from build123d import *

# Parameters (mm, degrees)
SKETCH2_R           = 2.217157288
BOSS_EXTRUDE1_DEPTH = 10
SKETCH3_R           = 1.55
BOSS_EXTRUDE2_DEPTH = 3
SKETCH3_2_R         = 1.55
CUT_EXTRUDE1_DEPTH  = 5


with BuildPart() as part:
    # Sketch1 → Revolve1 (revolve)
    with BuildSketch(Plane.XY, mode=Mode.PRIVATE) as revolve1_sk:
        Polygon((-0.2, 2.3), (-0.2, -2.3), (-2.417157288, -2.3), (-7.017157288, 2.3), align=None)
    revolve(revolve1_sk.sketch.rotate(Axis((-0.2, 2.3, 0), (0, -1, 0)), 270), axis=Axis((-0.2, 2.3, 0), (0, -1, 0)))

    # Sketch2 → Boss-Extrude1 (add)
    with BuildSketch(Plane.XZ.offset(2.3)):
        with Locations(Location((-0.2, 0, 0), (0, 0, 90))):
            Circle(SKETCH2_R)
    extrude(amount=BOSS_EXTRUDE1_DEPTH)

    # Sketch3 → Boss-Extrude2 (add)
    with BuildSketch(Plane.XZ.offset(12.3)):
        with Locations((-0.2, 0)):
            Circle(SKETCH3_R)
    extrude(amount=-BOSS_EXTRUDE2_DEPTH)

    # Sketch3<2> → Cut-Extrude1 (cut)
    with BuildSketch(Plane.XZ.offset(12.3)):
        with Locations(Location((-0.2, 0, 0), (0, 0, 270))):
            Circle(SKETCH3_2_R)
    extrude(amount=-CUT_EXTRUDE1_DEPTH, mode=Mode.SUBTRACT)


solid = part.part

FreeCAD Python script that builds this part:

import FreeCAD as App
import Part
import Sketcher
from FreeCAD import Vector
Q = App.Units.Quantity


def add_polygon(sketch, points):
    """Adds a closed chain of lines whose ends are joined by coincident constraints."""
    first, n = sketch.GeometryCount, len(points)
    for a, b in zip(points, points[1:] + points[:1]):
        sketch.addGeometry(Part.LineSegment(App.Vector(*a, 0), App.Vector(*b, 0)), False)
    for i in range(n):
        sketch.addConstraint(Sketcher.Constraint("Coincident", first + i, 2, first + (i + 1) % n, 1))

doc = App.newDocument("Part")
params = doc.addObject("Spreadsheet::Sheet", "Params")
for row, (alias, value) in enumerate([
    ("sketch1_height", "4.6 mm"),
    ("revolution_angle", "360 deg"),
    ("pad1_length", "10 mm"),
    ("sketch3_diameter", "3.1 mm"),
    ("pad2_length", "3 mm"),
    ("sketch4_diameter", "3.1 mm"),
    ("pocket1_length", "5 mm"),
], start=1):
    params.set(f"A{row}", alias)
    params.set(f"B{row}", "=" + value)
    params.setAlias(f"B{row}", alias)

body = doc.addObject("PartDesign::Body", "Body")

sketch1 = doc.addObject("Sketcher::SketchObject", "Sketch")
body.addObject(sketch1)
sketch1.AttachmentSupport = (doc.XY_Plane, [""])
sketch1.MapMode = "FlatFace"
add_polygon(sketch1, [(-0.2, -2.3), (-0.2, 2.3), (-7.017157, 2.3), (-2.417157, -2.3)])
sketch1.addGeometry(Part.LineSegment(Vector(-0.2, 2.3, 0), Vector(-0.2, -2.3, 0)), True)
sketch1.addConstraint([
    Sketcher.Constraint("Vertical", 0),
    Sketcher.Constraint("Horizontal", 1),
    Sketcher.Constraint("Horizontal", 3),
    Sketcher.Constraint("Vertical", 4),
    Sketcher.Constraint("Coincident", 4, 1, 0, 2),
    Sketcher.Constraint("Horizontal", 2, 2, 4, 2),
    Sketcher.Constraint("Angle", 2, Q("-45 deg")),
    Sketcher.Constraint("DistanceY", 0, 1, 0, 2, 4.6),
    Sketcher.Constraint("DistanceX", 0, 2, -1, 1, 0.2),
    Sketcher.Constraint("DistanceY", -1, 1, 0, 2, 2.3),
    Sketcher.Constraint("DistanceX", 1, 2, 1, 1, 6.817157),
])
sketch1.setExpression("Constraints[11]", "Params.sketch1_height")
revolution = doc.addObject("PartDesign::Revolution", "Revolution")
body.addObject(revolution)
revolution.Profile = sketch1
revolution.ReferenceAxis = (sketch1, ["Axis0"])
revolution.setExpression("Angle", "Params.revolution_angle")

sketch2 = doc.addObject("Sketcher::SketchObject", "Sketch001")
body.addObject(sketch2)
sketch2.AttachmentSupport = (doc.XZ_Plane, [""])
sketch2.MapMode = "FlatFace"
sketch2.AttachmentOffset = App.Placement(Vector(0, 0, 2.3), App.Rotation())
sketch2.addGeometry(Part.Circle(Vector(-0.2, 0, 0), Vector(0, 0, 1), 2.217157), False)
sketch2.addConstraint([
    Sketcher.Constraint("PointOnObject", 0, 3, -1),
    Sketcher.Constraint("DistanceX", 0, 3, -1, 1, 0.2),
    Sketcher.Constraint("Diameter", 0, 4.434315),
])
pad1 = doc.addObject("PartDesign::Pad", "Pad")
body.addObject(pad1)
pad1.Profile = sketch2
pad1.setExpression("Length", "Params.pad1_length")

sketch3 = doc.addObject("Sketcher::SketchObject", "Sketch002")
body.addObject(sketch3)
sketch3.AttachmentSupport = (doc.XZ_Plane, [""])
sketch3.MapMode = "FlatFace"
sketch3.AttachmentOffset = App.Placement(Vector(0, 0, 12.3), App.Rotation())
sketch3.addGeometry(Part.Circle(Vector(-0.2, 0, 0), Vector(0, 0, 1), 1.55), False)
sketch3.addConstraint([
    Sketcher.Constraint("PointOnObject", 0, 3, -1),
    Sketcher.Constraint("Diameter", 0, 3.1),
    Sketcher.Constraint("DistanceX", 0, 3, -1, 1, 0.2),
])
sketch3.setExpression("Constraints[1]", "Params.sketch3_diameter")
pad2 = doc.addObject("PartDesign::Pad", "Pad001")
body.addObject(pad2)
pad2.Profile = sketch3
pad2.setExpression("Length", "Params.pad2_length")
pad2.Reversed = True

sketch4 = doc.addObject("Sketcher::SketchObject", "Sketch003")
body.addObject(sketch4)
sketch4.AttachmentSupport = (doc.XZ_Plane, [""])
sketch4.MapMode = "FlatFace"
sketch4.AttachmentOffset = App.Placement(Vector(0, 0, 12.3), App.Rotation())
sketch4.addGeometry(Part.Circle(Vector(-0.2, 0, 0), Vector(0, 0, 1), 1.55), False)
sketch4.addConstraint([
    Sketcher.Constraint("PointOnObject", 0, 3, -1),
    Sketcher.Constraint("Diameter", 0, 3.1),
    Sketcher.Constraint("DistanceX", 0, 3, -1, 1, 0.2),
])
sketch4.setExpression("Constraints[1]", "Params.sketch4_diameter")
pocket1 = doc.addObject("PartDesign::Pocket", "Pocket")
body.addObject(pocket1)
pocket1.Profile = sketch4
pocket1.setExpression("Length", "Params.pocket1_length")

doc.recompute()
